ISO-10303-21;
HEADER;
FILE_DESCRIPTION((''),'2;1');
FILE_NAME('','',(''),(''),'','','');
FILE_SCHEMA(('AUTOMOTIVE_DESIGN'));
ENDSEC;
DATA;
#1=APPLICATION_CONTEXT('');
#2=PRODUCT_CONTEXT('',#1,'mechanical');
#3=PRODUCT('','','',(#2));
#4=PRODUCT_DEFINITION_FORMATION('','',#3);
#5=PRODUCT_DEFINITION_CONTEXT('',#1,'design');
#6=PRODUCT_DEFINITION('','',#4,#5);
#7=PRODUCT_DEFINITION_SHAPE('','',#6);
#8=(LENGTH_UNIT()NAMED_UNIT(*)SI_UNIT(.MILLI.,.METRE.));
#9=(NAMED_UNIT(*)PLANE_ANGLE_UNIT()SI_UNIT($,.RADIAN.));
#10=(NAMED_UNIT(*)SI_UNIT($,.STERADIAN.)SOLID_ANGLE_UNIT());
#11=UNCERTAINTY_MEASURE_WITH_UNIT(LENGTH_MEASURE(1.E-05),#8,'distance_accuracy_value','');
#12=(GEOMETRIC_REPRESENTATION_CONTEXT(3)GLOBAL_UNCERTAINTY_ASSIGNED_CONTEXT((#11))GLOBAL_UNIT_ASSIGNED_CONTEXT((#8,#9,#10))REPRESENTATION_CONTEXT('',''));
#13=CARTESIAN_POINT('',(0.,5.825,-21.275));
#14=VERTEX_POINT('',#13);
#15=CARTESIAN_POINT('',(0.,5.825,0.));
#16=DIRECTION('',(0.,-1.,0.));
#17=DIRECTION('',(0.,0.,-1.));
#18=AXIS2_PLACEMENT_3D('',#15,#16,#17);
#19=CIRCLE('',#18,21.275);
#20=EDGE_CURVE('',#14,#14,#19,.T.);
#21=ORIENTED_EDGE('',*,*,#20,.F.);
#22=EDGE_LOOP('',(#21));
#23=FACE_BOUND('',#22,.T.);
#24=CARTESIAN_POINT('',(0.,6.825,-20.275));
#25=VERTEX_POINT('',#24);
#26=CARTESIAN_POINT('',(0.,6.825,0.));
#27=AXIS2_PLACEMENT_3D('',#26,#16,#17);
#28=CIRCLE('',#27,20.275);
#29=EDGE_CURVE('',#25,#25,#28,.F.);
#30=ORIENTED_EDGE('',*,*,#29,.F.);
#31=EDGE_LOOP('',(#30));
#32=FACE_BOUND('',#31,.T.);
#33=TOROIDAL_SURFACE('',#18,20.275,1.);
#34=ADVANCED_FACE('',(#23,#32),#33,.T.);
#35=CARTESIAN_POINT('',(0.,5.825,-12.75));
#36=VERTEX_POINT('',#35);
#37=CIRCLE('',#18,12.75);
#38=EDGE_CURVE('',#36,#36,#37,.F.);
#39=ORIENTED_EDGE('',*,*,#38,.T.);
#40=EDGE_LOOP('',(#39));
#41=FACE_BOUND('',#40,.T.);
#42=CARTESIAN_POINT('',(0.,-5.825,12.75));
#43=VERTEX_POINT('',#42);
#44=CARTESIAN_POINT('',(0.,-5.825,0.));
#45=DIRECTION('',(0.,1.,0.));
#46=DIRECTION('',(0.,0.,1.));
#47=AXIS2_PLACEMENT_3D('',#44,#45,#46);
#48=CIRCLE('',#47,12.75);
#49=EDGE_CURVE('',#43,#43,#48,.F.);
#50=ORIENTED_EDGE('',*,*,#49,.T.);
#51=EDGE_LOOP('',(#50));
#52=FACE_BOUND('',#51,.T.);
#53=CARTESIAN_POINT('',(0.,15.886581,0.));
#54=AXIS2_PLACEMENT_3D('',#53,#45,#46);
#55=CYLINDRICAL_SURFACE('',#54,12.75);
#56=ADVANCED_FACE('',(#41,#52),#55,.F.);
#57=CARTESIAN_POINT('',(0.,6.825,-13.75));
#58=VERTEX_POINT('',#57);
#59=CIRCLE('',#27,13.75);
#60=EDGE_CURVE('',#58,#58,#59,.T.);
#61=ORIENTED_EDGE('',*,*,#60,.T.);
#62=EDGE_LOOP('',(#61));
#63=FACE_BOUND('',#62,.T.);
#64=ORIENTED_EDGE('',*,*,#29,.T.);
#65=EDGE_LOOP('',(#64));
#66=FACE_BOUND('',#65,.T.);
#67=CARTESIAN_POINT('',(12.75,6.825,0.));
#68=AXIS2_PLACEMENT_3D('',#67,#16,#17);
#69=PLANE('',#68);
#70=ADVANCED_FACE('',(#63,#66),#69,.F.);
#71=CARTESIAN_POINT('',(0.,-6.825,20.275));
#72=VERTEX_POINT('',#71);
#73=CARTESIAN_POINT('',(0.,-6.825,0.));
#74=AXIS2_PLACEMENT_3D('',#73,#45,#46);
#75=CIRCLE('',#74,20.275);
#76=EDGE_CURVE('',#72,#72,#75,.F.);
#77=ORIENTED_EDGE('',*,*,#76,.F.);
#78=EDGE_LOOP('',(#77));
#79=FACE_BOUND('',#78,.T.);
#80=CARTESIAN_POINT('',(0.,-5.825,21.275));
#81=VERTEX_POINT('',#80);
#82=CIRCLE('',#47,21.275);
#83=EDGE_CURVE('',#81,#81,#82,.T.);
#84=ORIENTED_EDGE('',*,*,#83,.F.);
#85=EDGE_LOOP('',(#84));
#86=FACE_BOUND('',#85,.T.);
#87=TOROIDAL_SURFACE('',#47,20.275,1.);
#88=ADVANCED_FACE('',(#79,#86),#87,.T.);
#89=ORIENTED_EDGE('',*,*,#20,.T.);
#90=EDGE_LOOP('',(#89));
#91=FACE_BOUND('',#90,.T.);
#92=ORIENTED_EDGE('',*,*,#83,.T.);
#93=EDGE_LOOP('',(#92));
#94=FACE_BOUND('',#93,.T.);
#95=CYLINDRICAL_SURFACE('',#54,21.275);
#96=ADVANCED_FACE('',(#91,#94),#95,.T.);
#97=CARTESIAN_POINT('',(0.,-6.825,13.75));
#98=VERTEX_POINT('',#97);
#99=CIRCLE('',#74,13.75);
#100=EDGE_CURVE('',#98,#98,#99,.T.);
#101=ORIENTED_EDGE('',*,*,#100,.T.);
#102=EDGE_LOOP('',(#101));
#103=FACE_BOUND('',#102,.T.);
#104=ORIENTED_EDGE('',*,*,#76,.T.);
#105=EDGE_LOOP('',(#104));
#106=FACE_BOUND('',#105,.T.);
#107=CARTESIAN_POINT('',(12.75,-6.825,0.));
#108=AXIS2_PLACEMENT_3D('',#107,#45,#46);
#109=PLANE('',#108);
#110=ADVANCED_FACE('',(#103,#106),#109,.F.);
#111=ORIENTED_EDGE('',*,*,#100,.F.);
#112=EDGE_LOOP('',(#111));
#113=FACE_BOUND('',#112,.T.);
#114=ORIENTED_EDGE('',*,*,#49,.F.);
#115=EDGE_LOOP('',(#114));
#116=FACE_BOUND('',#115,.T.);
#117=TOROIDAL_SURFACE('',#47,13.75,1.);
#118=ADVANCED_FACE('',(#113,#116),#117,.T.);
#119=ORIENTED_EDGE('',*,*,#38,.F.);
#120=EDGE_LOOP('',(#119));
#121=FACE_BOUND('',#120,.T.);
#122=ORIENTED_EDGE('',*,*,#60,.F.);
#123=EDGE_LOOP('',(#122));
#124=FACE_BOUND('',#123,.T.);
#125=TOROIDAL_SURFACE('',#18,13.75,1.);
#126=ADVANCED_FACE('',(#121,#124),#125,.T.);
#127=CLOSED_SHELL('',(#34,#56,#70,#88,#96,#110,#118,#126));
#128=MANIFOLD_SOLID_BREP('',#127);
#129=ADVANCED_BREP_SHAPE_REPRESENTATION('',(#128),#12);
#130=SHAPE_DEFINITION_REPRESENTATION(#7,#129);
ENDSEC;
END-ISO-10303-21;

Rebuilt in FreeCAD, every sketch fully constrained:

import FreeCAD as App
import Part
import Sketcher
from FreeCAD import Vector


def edges_at(feature, points):
    """Names of the edges that pass closest to the given points."""
    edges = feature.Shape.Edges
    near = lambda p: min(range(len(edges)), key=lambda i: edges[i].distToShape(Part.Vertex(*p))[0])
    return sorted({f"Edge{near(p) + 1}" for p in points})

doc = App.newDocument("Part")
body = doc.addObject("PartDesign::Body", "Body")

# Sketch on XY plane
sketch1 = body.newObject("Sketcher::SketchObject", "Sketch")
sketch1.AttachmentSupport = (doc.getObject("XY_Plane"), [""])
sketch1.MapMode = "FlatFace"
sketch1.addGeometry([
    Part.LineSegment(Vector(13, 7, 0), Vector(13, -7, 0)),
    Part.LineSegment(Vector(13, -7, 0), Vector(21, -7, 0)),
    Part.LineSegment(Vector(21, -7, 0), Vector(21, 7, 0)),
    Part.LineSegment(Vector(21, 7, 0), Vector(13, 7, 0)),
], False)
sketch1.addConstraint([
    Sketcher.Constraint("Coincident", 0, 2, 1, 1),
    Sketcher.Constraint("Coincident", 1, 2, 2, 1),
    Sketcher.Constraint("Coincident", 2, 2, 3, 1),
    Sketcher.Constraint("Coincident", 3, 2, 0, 1),
    Sketcher.Constraint("Vertical", 0),
    Sketcher.Constraint("Horizontal", 1),
    Sketcher.Constraint("Vertical", 2),
    Sketcher.Constraint("Horizontal", 3),
    Sketcher.Constraint("DistanceY", 0, 2, 0, 1, 13.65),
    Sketcher.Constraint("DistanceX", 1, 1, 1, 2, 8.525),
    Sketcher.Constraint("DistanceX", -1, 1, 0, 2, 12.75),
    Sketcher.Constraint("DistanceY", 0, 2, -1, 1, 6.825),
])
revolution = body.newObject("PartDesign::Revolution", "Revolution")
revolution.Profile = sketch1
revolution.ReferenceAxis = (sketch1, ["V_Axis"])
revolution.Angle = 360
doc.recompute()

fillet = body.newObject("PartDesign::Fillet", "Fillet")
fillet.Base = (revolution, edges_at(revolution, [
    (0, -6.825, -21.275),
    (0, -6.825, -12.75),
    (0, 6.825, -12.75),
    (0, 6.825, -21.275),
]))
fillet.Radius = 1

doc.recompute()
